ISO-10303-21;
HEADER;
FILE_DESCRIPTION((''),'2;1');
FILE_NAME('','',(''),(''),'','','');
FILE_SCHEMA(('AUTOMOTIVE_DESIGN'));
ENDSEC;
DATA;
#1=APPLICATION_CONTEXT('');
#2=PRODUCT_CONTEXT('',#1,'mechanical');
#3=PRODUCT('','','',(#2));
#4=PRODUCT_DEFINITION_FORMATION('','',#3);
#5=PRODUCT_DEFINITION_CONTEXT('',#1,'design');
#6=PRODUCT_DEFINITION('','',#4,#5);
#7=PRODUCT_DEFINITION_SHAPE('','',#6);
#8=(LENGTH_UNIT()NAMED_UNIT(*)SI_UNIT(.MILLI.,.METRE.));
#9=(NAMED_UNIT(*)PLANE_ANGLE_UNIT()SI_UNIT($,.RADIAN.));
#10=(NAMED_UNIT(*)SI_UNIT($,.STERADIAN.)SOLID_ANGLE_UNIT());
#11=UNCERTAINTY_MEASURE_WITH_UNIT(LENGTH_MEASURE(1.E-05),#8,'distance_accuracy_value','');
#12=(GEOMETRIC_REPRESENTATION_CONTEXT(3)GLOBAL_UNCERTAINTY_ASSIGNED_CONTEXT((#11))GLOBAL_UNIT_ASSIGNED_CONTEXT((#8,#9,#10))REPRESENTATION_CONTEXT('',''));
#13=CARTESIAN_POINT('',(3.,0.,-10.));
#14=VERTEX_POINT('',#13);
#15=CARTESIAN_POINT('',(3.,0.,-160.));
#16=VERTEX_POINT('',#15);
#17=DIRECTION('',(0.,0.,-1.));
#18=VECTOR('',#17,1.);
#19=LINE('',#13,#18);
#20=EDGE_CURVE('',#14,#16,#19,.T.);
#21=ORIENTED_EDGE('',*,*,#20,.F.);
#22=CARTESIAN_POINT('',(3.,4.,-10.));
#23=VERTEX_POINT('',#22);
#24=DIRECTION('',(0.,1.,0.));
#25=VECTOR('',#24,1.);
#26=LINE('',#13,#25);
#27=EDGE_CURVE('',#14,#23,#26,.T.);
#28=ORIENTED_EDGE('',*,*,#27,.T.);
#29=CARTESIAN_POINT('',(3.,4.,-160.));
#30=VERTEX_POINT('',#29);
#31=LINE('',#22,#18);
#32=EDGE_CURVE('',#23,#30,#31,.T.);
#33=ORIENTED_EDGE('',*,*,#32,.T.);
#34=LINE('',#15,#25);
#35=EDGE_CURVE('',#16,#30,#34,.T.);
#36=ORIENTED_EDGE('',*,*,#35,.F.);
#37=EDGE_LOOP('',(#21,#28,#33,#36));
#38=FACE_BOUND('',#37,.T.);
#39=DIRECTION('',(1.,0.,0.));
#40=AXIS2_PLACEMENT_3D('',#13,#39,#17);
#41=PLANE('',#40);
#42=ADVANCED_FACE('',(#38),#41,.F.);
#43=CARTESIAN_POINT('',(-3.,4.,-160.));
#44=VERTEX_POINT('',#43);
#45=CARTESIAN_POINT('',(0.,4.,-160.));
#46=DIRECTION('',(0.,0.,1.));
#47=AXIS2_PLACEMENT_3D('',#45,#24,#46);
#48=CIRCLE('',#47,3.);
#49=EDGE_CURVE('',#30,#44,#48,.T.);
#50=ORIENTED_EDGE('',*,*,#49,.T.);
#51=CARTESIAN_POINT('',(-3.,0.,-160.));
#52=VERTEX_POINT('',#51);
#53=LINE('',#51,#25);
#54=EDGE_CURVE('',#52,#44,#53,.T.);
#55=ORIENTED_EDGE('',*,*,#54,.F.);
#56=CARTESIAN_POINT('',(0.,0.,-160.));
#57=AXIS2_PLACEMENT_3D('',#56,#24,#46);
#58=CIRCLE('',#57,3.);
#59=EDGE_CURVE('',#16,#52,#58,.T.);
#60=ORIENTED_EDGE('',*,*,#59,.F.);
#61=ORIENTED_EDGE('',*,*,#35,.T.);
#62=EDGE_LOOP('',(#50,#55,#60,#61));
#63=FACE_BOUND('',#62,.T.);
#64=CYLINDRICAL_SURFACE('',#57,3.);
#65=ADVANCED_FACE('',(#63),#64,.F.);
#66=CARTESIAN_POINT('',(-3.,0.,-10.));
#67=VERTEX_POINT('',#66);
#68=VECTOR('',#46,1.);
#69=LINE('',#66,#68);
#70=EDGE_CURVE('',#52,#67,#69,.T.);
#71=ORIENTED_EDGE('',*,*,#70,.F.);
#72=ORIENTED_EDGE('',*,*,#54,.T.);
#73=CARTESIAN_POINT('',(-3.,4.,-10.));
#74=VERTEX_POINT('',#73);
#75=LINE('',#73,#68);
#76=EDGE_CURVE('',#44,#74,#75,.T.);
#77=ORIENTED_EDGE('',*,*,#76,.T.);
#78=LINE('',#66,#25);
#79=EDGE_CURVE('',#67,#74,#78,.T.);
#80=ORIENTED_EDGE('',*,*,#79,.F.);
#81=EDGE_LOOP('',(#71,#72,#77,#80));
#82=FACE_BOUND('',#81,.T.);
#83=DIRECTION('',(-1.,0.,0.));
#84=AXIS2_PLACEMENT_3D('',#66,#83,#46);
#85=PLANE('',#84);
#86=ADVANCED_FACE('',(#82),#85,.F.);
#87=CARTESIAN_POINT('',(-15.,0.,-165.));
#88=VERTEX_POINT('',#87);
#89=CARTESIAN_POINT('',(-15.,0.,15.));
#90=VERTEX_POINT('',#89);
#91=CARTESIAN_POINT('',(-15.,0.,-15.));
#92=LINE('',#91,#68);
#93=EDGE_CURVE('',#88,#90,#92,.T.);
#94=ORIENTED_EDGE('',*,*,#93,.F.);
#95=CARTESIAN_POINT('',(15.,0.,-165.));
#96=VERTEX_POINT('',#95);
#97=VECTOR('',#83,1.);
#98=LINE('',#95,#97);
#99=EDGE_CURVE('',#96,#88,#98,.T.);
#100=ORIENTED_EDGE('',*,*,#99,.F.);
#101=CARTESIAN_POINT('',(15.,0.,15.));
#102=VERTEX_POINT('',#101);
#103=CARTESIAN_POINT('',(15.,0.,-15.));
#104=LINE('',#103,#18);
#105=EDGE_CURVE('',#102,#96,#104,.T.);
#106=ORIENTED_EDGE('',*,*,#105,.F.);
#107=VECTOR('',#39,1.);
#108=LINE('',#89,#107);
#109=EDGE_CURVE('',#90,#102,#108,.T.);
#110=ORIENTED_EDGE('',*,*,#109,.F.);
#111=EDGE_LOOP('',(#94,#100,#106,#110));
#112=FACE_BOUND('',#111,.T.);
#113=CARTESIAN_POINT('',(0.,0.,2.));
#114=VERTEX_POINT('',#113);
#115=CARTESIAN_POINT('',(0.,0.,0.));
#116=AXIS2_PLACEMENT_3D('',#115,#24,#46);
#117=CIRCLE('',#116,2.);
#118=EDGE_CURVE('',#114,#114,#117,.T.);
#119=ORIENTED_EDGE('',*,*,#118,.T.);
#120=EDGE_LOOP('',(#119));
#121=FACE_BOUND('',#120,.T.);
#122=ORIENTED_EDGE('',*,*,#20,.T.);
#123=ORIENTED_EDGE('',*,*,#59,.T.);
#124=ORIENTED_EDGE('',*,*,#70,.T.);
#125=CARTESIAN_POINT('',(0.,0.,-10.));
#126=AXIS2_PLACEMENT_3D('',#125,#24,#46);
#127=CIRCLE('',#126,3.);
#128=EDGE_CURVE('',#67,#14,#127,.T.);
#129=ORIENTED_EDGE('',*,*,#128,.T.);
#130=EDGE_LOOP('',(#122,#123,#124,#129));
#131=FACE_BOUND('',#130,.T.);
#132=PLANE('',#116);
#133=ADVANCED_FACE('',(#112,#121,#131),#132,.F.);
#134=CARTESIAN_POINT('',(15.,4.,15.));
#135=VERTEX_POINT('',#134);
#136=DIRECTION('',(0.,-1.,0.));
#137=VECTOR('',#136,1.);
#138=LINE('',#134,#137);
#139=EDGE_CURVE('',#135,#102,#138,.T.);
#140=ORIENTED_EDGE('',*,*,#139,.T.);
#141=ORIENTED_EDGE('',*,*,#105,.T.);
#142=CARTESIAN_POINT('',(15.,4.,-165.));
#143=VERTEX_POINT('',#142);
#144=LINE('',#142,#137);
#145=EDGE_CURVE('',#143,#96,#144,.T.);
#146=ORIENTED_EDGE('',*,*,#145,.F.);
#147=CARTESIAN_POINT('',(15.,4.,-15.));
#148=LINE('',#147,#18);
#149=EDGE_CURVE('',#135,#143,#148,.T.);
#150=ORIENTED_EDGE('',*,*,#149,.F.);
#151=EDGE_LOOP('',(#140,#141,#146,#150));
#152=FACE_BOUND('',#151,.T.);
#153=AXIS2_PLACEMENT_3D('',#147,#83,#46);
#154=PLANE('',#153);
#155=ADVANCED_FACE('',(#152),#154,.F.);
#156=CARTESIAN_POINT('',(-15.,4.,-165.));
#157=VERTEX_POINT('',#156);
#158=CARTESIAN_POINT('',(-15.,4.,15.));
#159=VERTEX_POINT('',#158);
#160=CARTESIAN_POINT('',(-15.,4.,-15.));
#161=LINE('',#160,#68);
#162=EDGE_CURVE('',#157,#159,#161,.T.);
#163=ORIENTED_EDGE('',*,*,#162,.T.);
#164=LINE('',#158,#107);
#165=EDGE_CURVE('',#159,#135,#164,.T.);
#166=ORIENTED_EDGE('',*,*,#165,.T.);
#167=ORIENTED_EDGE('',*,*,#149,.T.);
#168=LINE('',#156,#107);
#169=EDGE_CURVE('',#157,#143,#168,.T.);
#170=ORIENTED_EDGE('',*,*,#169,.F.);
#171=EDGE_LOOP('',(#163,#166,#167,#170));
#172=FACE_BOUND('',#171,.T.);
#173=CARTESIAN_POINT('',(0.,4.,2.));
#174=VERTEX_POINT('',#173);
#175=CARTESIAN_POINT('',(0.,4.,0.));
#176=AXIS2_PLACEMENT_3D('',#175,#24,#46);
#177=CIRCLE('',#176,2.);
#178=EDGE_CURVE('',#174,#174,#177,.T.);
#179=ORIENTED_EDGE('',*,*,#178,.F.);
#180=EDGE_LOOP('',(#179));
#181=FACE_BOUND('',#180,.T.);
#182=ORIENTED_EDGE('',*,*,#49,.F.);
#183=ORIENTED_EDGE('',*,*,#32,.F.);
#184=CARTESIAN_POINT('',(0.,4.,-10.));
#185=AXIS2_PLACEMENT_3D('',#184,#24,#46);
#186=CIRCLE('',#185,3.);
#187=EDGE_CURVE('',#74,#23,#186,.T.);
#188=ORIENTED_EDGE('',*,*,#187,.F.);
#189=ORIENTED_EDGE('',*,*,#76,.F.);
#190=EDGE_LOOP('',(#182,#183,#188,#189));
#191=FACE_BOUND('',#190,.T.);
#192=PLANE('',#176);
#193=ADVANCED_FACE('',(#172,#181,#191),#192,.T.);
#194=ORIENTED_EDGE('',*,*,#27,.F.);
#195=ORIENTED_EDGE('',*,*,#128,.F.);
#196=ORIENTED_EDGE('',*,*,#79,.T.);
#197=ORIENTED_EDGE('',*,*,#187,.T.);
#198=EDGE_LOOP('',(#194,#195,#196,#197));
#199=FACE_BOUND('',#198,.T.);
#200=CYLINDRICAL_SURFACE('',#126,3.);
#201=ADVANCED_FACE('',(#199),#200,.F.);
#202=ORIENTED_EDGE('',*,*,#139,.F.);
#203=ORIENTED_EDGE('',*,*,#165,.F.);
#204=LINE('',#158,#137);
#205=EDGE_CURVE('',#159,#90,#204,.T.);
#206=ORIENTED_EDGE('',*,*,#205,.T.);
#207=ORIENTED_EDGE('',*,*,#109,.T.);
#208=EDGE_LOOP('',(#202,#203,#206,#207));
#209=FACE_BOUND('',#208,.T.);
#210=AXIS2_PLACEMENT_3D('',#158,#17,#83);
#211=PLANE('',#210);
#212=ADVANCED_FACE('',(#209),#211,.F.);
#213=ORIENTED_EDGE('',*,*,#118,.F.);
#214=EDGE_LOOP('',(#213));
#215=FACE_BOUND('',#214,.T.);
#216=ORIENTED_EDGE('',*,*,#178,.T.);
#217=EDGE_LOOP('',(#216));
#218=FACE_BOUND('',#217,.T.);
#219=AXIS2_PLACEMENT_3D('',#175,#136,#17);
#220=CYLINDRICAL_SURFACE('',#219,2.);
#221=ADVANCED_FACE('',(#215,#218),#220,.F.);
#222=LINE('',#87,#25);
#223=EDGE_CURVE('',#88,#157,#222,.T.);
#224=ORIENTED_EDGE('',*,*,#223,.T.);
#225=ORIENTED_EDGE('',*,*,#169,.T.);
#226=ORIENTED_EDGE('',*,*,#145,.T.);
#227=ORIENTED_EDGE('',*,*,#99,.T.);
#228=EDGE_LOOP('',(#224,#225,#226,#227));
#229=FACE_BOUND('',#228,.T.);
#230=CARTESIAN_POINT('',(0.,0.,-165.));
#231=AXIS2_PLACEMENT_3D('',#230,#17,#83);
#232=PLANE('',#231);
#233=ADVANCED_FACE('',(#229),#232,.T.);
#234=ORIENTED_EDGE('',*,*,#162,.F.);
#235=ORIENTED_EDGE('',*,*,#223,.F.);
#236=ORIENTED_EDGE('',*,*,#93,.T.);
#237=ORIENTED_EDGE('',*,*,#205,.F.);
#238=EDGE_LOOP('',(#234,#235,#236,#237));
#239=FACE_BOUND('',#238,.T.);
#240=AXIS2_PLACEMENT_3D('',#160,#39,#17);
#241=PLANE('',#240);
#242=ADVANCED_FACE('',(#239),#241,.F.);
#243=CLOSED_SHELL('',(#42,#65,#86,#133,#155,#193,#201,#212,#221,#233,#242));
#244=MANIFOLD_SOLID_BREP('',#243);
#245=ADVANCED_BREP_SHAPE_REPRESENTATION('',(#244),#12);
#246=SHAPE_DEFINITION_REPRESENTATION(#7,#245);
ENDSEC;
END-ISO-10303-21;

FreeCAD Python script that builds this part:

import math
import FreeCAD as App
import Part
import Sketcher
from FreeCAD import Vector
Q = App.Units.Quantity

doc = App.newDocument("Part")
params = doc.addObject("Spreadsheet::Sheet", "Params")
for row, (alias, value) in enumerate([
    ("sketch1_diameter", "4 mm"),
    ("sketch1_width", "30 mm"),
    ("pad1_length", "4 mm"),
    ("sketch2_width", "30 mm"),
    ("sketch2_height", "4 mm"),
    ("pad2_length", "150 mm"),
    ("sketch3_radius", "3 mm"),
    ("sketch3_height", "150 mm"),
], start=1):
    params.set(f"A{row}", alias)
    params.set(f"B{row}", "=" + value)
    params.setAlias(f"B{row}", alias)

body = doc.addObject("PartDesign::Body", "Body")

sketch1 = body.newObject("Sketcher::SketchObject", "Sketch")
sketch1.AttachmentSupport = (doc.getObject("XZ_Plane"), [""])
sketch1.MapMode = "FlatFace"
sketch1.addGeometry([
    Part.LineSegment(Vector(-15, -15, 0), Vector(-15, 15, 0)),
    Part.LineSegment(Vector(-15, 15, 0), Vector(15, 15, 0)),
    Part.LineSegment(Vector(15, 15, 0), Vector(15, -15, 0)),
    Part.LineSegment(Vector(15, -15, 0), Vector(-15, -15, 0)),
    Part.Circle(Vector(0, 0, 0), Vector(0, 0, 1), 2),
], False)
sketch1.addConstraint([
    Sketcher.Constraint("Coincident", 0, 2, 1, 1),
    Sketcher.Constraint("Coincident", 1, 2, 2, 1),
    Sketcher.Constraint("Coincident", 2, 2, 3, 1),
    Sketcher.Constraint("Coincident", 3, 2, 0, 1),
    Sketcher.Constraint("Vertical", 0),
    Sketcher.Constraint("Horizontal", 1),
    Sketcher.Constraint("Vertical", 2),
    Sketcher.Constraint("Horizontal", 3),
    Sketcher.Constraint("Coincident", 4, 3, -1, 1),
    Sketcher.Constraint("Symmetric", 0, 2, 2, 2, -1, 1),
    Sketcher.Constraint("Equal", 3, 0),
    Sketcher.Constraint("Diameter", 4, Q("4 mm")),
    Sketcher.Constraint("DistanceX", 1, 1, 1, 2, Q("30 mm")),
])
sketch1.setExpression("Constraints[11]", "Params.sketch1_diameter")
sketch1.setExpression("Constraints[12]", "Params.sketch1_width")
pad1 = body.newObject("PartDesign::Pad", "Pad")
pad1.Profile = sketch1
pad1.setExpression("Length", "Params.pad1_length")
pad1.Reversed = True

sketch2 = body.newObject("Sketcher::SketchObject", "Sketch001")
sketch2.AttachmentSupport = (doc.getObject("XY_Plane"), [""])
sketch2.MapMode = "FlatFace"
sketch2.AttachmentOffset = App.Placement(Vector(0, 0, -15), App.Rotation())
sketch2.addGeometry([
    Part.LineSegment(Vector(15, 4, 0), Vector(15, 0, 0)),
    Part.LineSegment(Vector(15, 0, 0), Vector(-15, 0, 0)),
    Part.LineSegment(Vector(-15, 0, 0), Vector(-15, 4, 0)),
    Part.LineSegment(Vector(-15, 4, 0), Vector(15, 4, 0)),
], False)
sketch2.addConstraint([
    Sketcher.Constraint("Coincident", 0, 2, 1, 1),
    Sketcher.Constraint("Coincident", 1, 2, 2, 1),
    Sketcher.Constraint("Coincident", 2, 2, 3, 1),
    Sketcher.Constraint("Coincident", 3, 2, 0, 1),
    Sketcher.Constraint("Vertical", 0),
    Sketcher.Constraint("Horizontal", 1),
    Sketcher.Constraint("Vertical", 2),
    Sketcher.Constraint("Horizontal", 3),
    Sketcher.Constraint("Symmetric", 0, 2, 1, 2, -1, 1),
    Sketcher.Constraint("DistanceX", 1, 2, 1, 1, Q("30 mm")),
    Sketcher.Constraint("DistanceY", 0, 2, 0, 1, Q("4 mm")),
])
sketch2.setExpression("Constraints[9]", "Params.sketch2_width")
sketch2.setExpression("Constraints[10]", "Params.sketch2_height")
pad2 = body.newObject("PartDesign::Pad", "Pad001")
pad2.Profile = sketch2
pad2.setExpression("Length", "Params.pad2_length")
pad2.Reversed = True

sketch3 = body.newObject("Sketcher::SketchObject", "Sketch002")
sketch3.AttachmentSupport = (doc.getObject("XZ_Plane"), [""])
sketch3.MapMode = "FlatFace"
sketch3.AttachmentOffset = App.Placement(Vector(0, 0, -4), App.Rotation())
sketch3.addGeometry([
    Part.LineSegment(Vector(-3, -160, 0), Vector(-3, -10, 0)),
    Part.ArcOfCircle(Part.Circle(Vector(0, -10, 0), Vector(0, 0, 1), 3), math.radians(0), math.radians(180)),
    Part.LineSegment(Vector(3, -10, 0), Vector(3, -160, 0)),
    Part.ArcOfCircle(Part.Circle(Vector(0, -160, 0), Vector(0, 0, 1), 3), math.radians(180), math.radians(360)),
], False)
sketch3.addConstraint([
    Sketcher.Constraint("Tangent", 0, 2, 1, 2),
    Sketcher.Constraint("Tangent", 1, 1, 2, 1),
    Sketcher.Constraint("Tangent", 2, 2, 3, 2),
    Sketcher.Constraint("Tangent", 3, 1, 0, 1),
    Sketcher.Constraint("Vertical", 0),
    Sketcher.Constraint("Vertical", 2),
    Sketcher.Constraint("PointOnObject", 1, 3, -2),
    Sketcher.Constraint("Radius", 1, Q("3 mm")),
    Sketcher.Constraint("DistanceY", 0, 1, 0, 2, Q("150 mm")),
    Sketcher.Constraint("DistanceY", 1, 3, -1, 1, Q("10 mm")),
])
sketch3.setExpression("Constraints[7]", "Params.sketch3_radius")
sketch3.setExpression("Constraints[8]", "Params.sketch3_height")
pocket1 = body.newObject("PartDesign::Pocket", "Pocket")
pocket1.Profile = sketch3
pocket1.Type = "ThroughAll"
pocket1.Reversed = True

doc.recompute()
